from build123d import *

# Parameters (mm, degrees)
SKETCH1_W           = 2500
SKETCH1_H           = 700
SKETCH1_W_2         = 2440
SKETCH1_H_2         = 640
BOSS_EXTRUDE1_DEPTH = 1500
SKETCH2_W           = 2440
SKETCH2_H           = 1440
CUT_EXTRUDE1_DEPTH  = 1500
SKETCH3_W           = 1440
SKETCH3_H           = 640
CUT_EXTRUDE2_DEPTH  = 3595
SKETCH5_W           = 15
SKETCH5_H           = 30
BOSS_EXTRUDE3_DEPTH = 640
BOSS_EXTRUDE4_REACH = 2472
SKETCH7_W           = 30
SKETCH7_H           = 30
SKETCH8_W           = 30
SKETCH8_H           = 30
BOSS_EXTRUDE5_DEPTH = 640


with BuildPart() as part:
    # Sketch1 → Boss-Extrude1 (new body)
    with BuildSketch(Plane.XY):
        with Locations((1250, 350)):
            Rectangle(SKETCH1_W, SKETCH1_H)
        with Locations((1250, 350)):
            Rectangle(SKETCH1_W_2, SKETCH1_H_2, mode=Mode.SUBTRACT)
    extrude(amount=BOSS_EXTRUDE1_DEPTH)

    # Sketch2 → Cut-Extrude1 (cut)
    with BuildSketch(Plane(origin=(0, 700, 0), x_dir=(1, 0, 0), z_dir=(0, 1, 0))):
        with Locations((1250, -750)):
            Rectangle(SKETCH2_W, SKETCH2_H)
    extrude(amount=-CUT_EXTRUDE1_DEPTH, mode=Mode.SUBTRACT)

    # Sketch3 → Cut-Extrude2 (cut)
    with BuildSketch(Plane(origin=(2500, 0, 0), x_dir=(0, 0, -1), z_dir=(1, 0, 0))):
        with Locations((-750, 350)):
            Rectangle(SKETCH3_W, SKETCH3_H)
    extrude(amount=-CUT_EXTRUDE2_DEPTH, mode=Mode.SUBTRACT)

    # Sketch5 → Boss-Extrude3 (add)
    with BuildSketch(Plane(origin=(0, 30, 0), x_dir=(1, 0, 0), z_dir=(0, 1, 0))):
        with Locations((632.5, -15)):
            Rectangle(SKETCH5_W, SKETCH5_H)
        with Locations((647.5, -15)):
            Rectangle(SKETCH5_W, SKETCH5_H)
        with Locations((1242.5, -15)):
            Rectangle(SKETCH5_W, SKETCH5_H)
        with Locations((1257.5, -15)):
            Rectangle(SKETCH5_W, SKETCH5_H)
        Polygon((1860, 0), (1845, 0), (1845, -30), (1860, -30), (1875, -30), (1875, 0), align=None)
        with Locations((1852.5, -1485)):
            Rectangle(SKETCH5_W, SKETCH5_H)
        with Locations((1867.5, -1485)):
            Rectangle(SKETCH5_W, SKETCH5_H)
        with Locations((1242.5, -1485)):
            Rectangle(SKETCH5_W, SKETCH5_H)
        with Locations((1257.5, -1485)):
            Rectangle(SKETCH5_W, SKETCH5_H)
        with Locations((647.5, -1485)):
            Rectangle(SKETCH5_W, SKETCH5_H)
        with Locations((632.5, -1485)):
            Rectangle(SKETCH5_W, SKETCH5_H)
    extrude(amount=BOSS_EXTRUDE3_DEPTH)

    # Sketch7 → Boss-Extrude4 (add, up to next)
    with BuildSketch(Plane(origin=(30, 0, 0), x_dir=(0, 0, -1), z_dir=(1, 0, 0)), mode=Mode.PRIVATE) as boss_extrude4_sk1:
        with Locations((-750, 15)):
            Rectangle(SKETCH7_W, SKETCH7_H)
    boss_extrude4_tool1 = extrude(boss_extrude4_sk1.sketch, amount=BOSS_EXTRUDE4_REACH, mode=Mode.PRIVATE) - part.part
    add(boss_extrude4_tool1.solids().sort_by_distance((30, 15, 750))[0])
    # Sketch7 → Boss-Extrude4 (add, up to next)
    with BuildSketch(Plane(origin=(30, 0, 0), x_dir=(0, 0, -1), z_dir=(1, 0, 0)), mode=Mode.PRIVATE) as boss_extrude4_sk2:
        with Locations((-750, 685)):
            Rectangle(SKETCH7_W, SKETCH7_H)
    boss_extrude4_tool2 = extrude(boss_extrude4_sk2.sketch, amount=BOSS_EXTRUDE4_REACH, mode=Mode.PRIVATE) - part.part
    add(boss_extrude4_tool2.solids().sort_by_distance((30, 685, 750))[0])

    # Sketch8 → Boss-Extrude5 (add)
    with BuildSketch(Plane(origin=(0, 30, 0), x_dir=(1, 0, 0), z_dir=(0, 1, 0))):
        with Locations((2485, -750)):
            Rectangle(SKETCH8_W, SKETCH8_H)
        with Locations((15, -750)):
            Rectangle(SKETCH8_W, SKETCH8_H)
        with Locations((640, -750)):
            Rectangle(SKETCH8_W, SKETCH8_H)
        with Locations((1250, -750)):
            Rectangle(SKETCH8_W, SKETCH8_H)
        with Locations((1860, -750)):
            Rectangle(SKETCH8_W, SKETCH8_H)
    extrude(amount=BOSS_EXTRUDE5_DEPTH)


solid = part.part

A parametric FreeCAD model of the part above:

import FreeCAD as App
import Part
import Sketcher

V = App.Vector


def add_polygon(sketch, points):
    """Adds a closed chain of lines whose ends are joined by coincident constraints."""
    first, n = sketch.GeometryCount, len(points)
    for a, b in zip(points, points[1:] + points[:1]):
        sketch.addGeometry(Part.LineSegment(App.Vector(*a, 0), App.Vector(*b, 0)), False)
    for i in range(n):
        sketch.addConstraint(Sketcher.Constraint("Coincident", first + i, 2, first + (i + 1) % n, 1))

doc = App.newDocument("Part")
body = doc.addObject("PartDesign::Body", "Body")

# Sketch on XY plane
sketch1 = doc.addObject("Sketcher::SketchObject", "Sketch")
body.addObject(sketch1)
sketch1.AttachmentSupport = (doc.XY_Plane, [""])
sketch1.MapMode = "FlatFace"
add_polygon(sketch1, [(0, 700), (0, 0), (2500, 0), (2500, 700)])  # lines 0-3
add_polygon(sketch1, [(2470, 30), (30, 30), (30, 670), (2470, 670)])  # lines 4-7
sketch1.addConstraint([
    Sketcher.Constraint("Vertical", 0),
    Sketcher.Constraint("Horizontal", 1),
    Sketcher.Constraint("Vertical", 2),
    Sketcher.Constraint("Horizontal", 3),
    Sketcher.Constraint("Horizontal", 4),
    Sketcher.Constraint("Vertical", 5),
    Sketcher.Constraint("Horizontal", 6),
    Sketcher.Constraint("Vertical", 7),
    Sketcher.Constraint("Coincident", 0, 2, -1, 1),
    Sketcher.Constraint("DistanceX", 1, 1, 1, 2, 2500.0),
    Sketcher.Constraint("DistanceX", 4, 2, 4, 1, 2440.0),
    Sketcher.Constraint("DistanceY", 0, 2, 0, 1, 700.0),
    Sketcher.Constraint("DistanceY", 5, 1, 5, 2, 640.0),
    Sketcher.Constraint("DistanceX", -1, 1, 4, 2, 30.0),
    Sketcher.Constraint("DistanceY", -1, 1, 4, 2, 30.0),
])
pad1 = doc.addObject("PartDesign::Pad", "Pad")
body.addObject(pad1)
pad1.Profile = sketch1
pad1.Length = 1500

# Sketch on XZ plane
sketch2 = doc.addObject("Sketcher::SketchObject", "Sketch001")
body.addObject(sketch2)
sketch2.AttachmentSupport = (doc.XZ_Plane, [""])
sketch2.MapMode = "FlatFace"
sketch2.AttachmentOffset = App.Placement(V(0, 0, -700), App.Rotation())
add_polygon(sketch2, [(30, 30), (30, 1470), (2470, 1470), (2470, 30)])  # lines 0-3
sketch2.addConstraint([
    Sketcher.Constraint("Vertical", 0),
    Sketcher.Constraint("Horizontal", 1),
    Sketcher.Constraint("Vertical", 2),
    Sketcher.Constraint("Horizontal", 3),
    Sketcher.Constraint("DistanceX", 1, 1, 1, 2, 2440.0),
    Sketcher.Constraint("DistanceY", 0, 1, 0, 2, 1440.0),
    Sketcher.Constraint("DistanceX", -1, 1, 0, 2, 30.0),
    Sketcher.Constraint("DistanceY", -1, 1, 0, 2, 1470.0),
])
pocket1 = doc.addObject("PartDesign::Pocket", "Pocket")
body.addObject(pocket1)
pocket1.Profile = sketch2
pocket1.Length = 1500
pocket1.Reversed = True

# Sketch on YZ plane
sketch3 = doc.addObject("Sketcher::SketchObject", "Sketch002")
body.addObject(sketch3)
sketch3.AttachmentSupport = (doc.YZ_Plane, [""])
sketch3.MapMode = "FlatFace"
sketch3.AttachmentOffset = App.Placement(V(0, 0, 2500), App.Rotation())
add_polygon(sketch3, [(670, 1470), (30, 1470), (30, 30), (670, 30)])  # lines 0-3
sketch3.addConstraint([
    Sketcher.Constraint("Horizontal", 0),
    Sketcher.Constraint("Vertical", 1),
    Sketcher.Constraint("Horizontal", 2),
    Sketcher.Constraint("Vertical", 3),
    Sketcher.Constraint("DistanceX", 0, 2, 0, 1, 640.0),
    Sketcher.Constraint("DistanceY", 1, 2, 1, 1, 1440.0),
    Sketcher.Constraint("DistanceX", -1, 1, 0, 2, 30.0),
    Sketcher.Constraint("DistanceY", -1, 1, 0, 2, 1470.0),
])
pocket2 = doc.addObject("PartDesign::Pocket", "Pocket001")
body.addObject(pocket2)
pocket2.Profile = sketch3
pocket2.Length = 3595

# Sketch on XZ plane
sketch4 = doc.addObject("Sketcher::SketchObject", "Sketch003")
body.addObject(sketch4)
sketch4.AttachmentSupport = (doc.XZ_Plane, [""])
sketch4.MapMode = "FlatFace"
sketch4.AttachmentOffset = App.Placement(V(0, 0, -30), App.Rotation())
add_polygon(sketch4, [(625, 0), (625, 30), (655, 30), (655, 0)])  # lines 0-3
add_polygon(sketch4, [(1235, 0), (1235, 30), (1265, 30), (1265, 0)])  # lines 4-7
add_polygon(sketch4, [(1845, 0), (1845, 30), (1875, 30), (1875, 0)])  # lines 8-11
add_polygon(sketch4, [(1845, 1470), (1845, 1500), (1875, 1500), (1875, 1470)])  # lines 12-15
add_polygon(sketch4, [(1235, 1470), (1235, 1500), (1265, 1500), (1265, 1470)])  # lines 16-19
add_polygon(sketch4, [(655, 1500), (655, 1470), (625, 1470), (625, 1500)])  # lines 20-23
sketch4.addConstraint([
    Sketcher.Constraint("Vertical", 0),
    Sketcher.Constraint("Horizontal", 1),
    Sketcher.Constraint("Vertical", 2),
    Sketcher.Constraint("Horizontal", 3),
    Sketcher.Constraint("Vertical", 4),
    Sketcher.Constraint("Horizontal", 5),
    Sketcher.Constraint("Vertical", 6),
    Sketcher.Constraint("Horizontal", 7),
    Sketcher.Constraint("Vertical", 8),
    Sketcher.Constraint("Horizontal", 9),
    Sketcher.Constraint("Vertical", 10),
    Sketcher.Constraint("Horizontal", 11),
    Sketcher.Constraint("Vertical", 12),
    Sketcher.Constraint("Horizontal", 13),
    Sketcher.Constraint("Vertical", 14),
    Sketcher.Constraint("Horizontal", 15),
    Sketcher.Constraint("Vertical", 16),
    Sketcher.Constraint("Horizontal", 17),
    Sketcher.Constraint("Vertical", 18),
    Sketcher.Constraint("Horizontal", 19),
    Sketcher.Constraint("Vertical", 20),
    Sketcher.Constraint("Horizontal", 21),
    Sketcher.Constraint("Vertical", 22),
    Sketcher.Constraint("Horizontal", 23),
    Sketcher.Constraint("PointOnObject", 2, 2, -1),
    Sketcher.Constraint("PointOnObject", 6, 2, -1),
    Sketcher.Constraint("PointOnObject", 10, 2, -1),
    Sketcher.Constraint("Horizontal", 1, 2, 4, 2),
    Sketcher.Constraint("Horizontal", 5, 2, 8, 2),
    Sketcher.Constraint("Horizontal", 13, 2, 16, 2),
    Sketcher.Constraint("Horizontal", 15, 2, 18, 2),
    Sketcher.Constraint("Horizontal", 19, 2, 20, 2),
    Sketcher.Constraint("Horizontal", 17, 2, 22, 2),
    Sketcher.Constraint("Vertical", 11, 2, 12, 2),
    Sketcher.Constraint("Vertical", 10, 2, 13, 2),
    Sketcher.Constraint("Vertical", 7, 2, 16, 2),
    Sketcher.Constraint("Vertical", 6, 2, 17, 2),
    Sketcher.Constraint("Vertical", 2, 2, 20, 2),
    Sketcher.Constraint("Vertical", 3, 2, 21, 2),
    Sketcher.Constraint("Equal", 3, 5),
    Sketcher.Constraint("Equal", 7, 9),
    Sketcher.Constraint("Equal", 23, 0),
    Sketcher.Constraint("Equal", 10, 12),
    Sketcher.Constraint("DistanceX", 1, 1, 1, 2, 30.0),
    Sketcher.Constraint("DistanceX", -1, 1, 0, 2, 625.0),
    Sketcher.Constraint("DistanceX", -1, 1, 4, 2, 1235.0),
    Sketcher.Constraint("DistanceX", -1, 1, 8, 2, 1845.0),
    Sketcher.Constraint("DistanceY", -1, 1, 12, 2, 1500.0),
])
pad2 = doc.addObject("PartDesign::Pad", "Pad001")
body.addObject(pad2)
pad2.Profile = sketch4
pad2.Length = 640
pad2.Reversed = True

# Sketch on YZ plane
sketch5 = doc.addObject("Sketcher::SketchObject", "Sketch004")
body.addObject(sketch5)
sketch5.AttachmentSupport = (doc.YZ_Plane, [""])
sketch5.MapMode = "FlatFace"
sketch5.AttachmentOffset = App.Placement(V(0, 0, 30), App.Rotation())
add_polygon(sketch5, [(30, 765), (0, 765), (0, 735), (30, 735)])  # lines 0-3
sketch5.addConstraint([
    Sketcher.Constraint("Horizontal", 0),
    Sketcher.Constraint("Vertical", 1),
    Sketcher.Constraint("Horizontal", 2),
    Sketcher.Constraint("Vertical", 3),
    Sketcher.Constraint("PointOnObject", 0, 2, -2),
    Sketcher.Constraint("Equal", 2, 1),
    Sketcher.Constraint("DistanceX", 0, 2, 0, 1, 30.0),
    Sketcher.Constraint("DistanceY", -1, 1, 0, 2, 765.0),
])
pad3 = doc.addObject("PartDesign::Pad", "Pad002")
body.addObject(pad3)
pad3.Profile = sketch5
pad3.Type = "UpToFirst"

# Sketch on YZ plane
sketch6 = doc.addObject("Sketcher::SketchObject", "Sketch005")
body.addObject(sketch6)
sketch6.AttachmentSupport = (doc.YZ_Plane, [""])
sketch6.MapMode = "FlatFace"
sketch6.AttachmentOffset = App.Placement(V(0, 0, 30), App.Rotation())
add_polygon(sketch6, [(700, 765), (670, 765), (670, 735), (700, 735)])  # lines 0-3
sketch6.addConstraint([
    Sketcher.Constraint("Horizontal", 0),
    Sketcher.Constraint("Vertical", 1),
    Sketcher.Constraint("Horizontal", 2),
    Sketcher.Constraint("Vertical", 3),
    Sketcher.Constraint("Equal", 2, 1),
    Sketcher.Constraint("DistanceX", 0, 2, 0, 1, 30.0),
    Sketcher.Constraint("DistanceX", -1, 1, 0, 2, 670.0),
    Sketcher.Constraint("DistanceY", -1, 1, 0, 2, 765.0),
])
pad4 = doc.addObject("PartDesign::Pad", "Pad003")
body.addObject(pad4)
pad4.Profile = sketch6
pad4.Type = "UpToFirst"

# Sketch on XZ plane
sketch7 = doc.addObject("Sketcher::SketchObject", "Sketch006")
body.addObject(sketch7)
sketch7.AttachmentSupport = (doc.XZ_Plane, [""])
sketch7.MapMode = "FlatFace"
sketch7.AttachmentOffset = App.Placement(V(0, 0, -30), App.Rotation())
add_polygon(sketch7, [(2470, 735), (2470, 765), (2500, 765), (2500, 735)])  # lines 0-3
add_polygon(sketch7, [(0, 735), (0, 765), (30, 765), (30, 735)])  # lines 4-7
add_polygon(sketch7, [(625, 735), (625, 765), (655, 765), (655, 735)])  # lines 8-11
add_polygon(sketch7, [(1235, 735), (1235, 765), (1265, 765), (1265, 735)])  # lines 12-15
add_polygon(sketch7, [(1845, 735), (1845, 765), (1875, 765), (1875, 735)])  # lines 16-19
sketch7.addConstraint([
    Sketcher.Constraint("Vertical", 0),
    Sketcher.Constraint("Horizontal", 1),
    Sketcher.Constraint("Vertical", 2),
    Sketcher.Constraint("Horizontal", 3),
    Sketcher.Constraint("Vertical", 4),
    Sketcher.Constraint("Horizontal", 5),
    Sketcher.Constraint("Vertical", 6),
    Sketcher.Constraint("Horizontal", 7),
    Sketcher.Constraint("Vertical", 8),
    Sketcher.Constraint("Horizontal", 9),
    Sketcher.Constraint("Vertical", 10),
    Sketcher.Constraint("Horizontal", 11),
    Sketcher.Constraint("Vertical", 12),
    Sketcher.Constraint("Horizontal", 13),
    Sketcher.Constraint("Vertical", 14),
    Sketcher.Constraint("Horizontal", 15),
    Sketcher.Constraint("Vertical", 16),
    Sketcher.Constraint("Horizontal", 17),
    Sketcher.Constraint("Vertical", 18),
    Sketcher.Constraint("Horizontal", 19),
    Sketcher.Constraint("PointOnObject", 4, 2, -2),
    Sketcher.Constraint("Horizontal", 1, 2, 4, 2),
    Sketcher.Constraint("Horizontal", 3, 2, 6, 2),
    Sketcher.Constraint("Horizontal", 5, 2, 8, 2),
    Sketcher.Constraint("Horizontal", 7, 2, 10, 2),
    Sketcher.Constraint("Horizontal", 9, 2, 12, 2),
    Sketcher.Constraint("Horizontal", 11, 2, 14, 2),
    Sketcher.Constraint("Horizontal", 13, 2, 16, 2),
    Sketcher.Constraint("Horizontal", 15, 2, 18, 2),
    Sketcher.Constraint("Equal", 3, 5),
    Sketcher.Constraint("Equal", 7, 9),
    Sketcher.Constraint("Equal", 11, 13),
    Sketcher.Constraint("Equal", 15, 17),
    Sketcher.Constraint("Equal", 19, 0),
    Sketcher.Constraint("DistanceX", 1, 1, 1, 2, 30.0),
    Sketcher.Constraint("DistanceX", -1, 1, 0, 2, 2470.0),
    Sketcher.Constraint("DistanceY", -1, 1, 0, 2, 765.0),
    Sketcher.Constraint("DistanceX", -1, 1, 8, 2, 625.0),
    Sketcher.Constraint("DistanceX", -1, 1, 12, 2, 1235.0),
    Sketcher.Constraint("DistanceX", -1, 1, 16, 2, 1845.0),
])
pad5 = doc.addObject("PartDesign::Pad", "Pad004")
body.addObject(pad5)
pad5.Profile = sketch7
pad5.Length = 640
pad5.Reversed = True

doc.recompute()
